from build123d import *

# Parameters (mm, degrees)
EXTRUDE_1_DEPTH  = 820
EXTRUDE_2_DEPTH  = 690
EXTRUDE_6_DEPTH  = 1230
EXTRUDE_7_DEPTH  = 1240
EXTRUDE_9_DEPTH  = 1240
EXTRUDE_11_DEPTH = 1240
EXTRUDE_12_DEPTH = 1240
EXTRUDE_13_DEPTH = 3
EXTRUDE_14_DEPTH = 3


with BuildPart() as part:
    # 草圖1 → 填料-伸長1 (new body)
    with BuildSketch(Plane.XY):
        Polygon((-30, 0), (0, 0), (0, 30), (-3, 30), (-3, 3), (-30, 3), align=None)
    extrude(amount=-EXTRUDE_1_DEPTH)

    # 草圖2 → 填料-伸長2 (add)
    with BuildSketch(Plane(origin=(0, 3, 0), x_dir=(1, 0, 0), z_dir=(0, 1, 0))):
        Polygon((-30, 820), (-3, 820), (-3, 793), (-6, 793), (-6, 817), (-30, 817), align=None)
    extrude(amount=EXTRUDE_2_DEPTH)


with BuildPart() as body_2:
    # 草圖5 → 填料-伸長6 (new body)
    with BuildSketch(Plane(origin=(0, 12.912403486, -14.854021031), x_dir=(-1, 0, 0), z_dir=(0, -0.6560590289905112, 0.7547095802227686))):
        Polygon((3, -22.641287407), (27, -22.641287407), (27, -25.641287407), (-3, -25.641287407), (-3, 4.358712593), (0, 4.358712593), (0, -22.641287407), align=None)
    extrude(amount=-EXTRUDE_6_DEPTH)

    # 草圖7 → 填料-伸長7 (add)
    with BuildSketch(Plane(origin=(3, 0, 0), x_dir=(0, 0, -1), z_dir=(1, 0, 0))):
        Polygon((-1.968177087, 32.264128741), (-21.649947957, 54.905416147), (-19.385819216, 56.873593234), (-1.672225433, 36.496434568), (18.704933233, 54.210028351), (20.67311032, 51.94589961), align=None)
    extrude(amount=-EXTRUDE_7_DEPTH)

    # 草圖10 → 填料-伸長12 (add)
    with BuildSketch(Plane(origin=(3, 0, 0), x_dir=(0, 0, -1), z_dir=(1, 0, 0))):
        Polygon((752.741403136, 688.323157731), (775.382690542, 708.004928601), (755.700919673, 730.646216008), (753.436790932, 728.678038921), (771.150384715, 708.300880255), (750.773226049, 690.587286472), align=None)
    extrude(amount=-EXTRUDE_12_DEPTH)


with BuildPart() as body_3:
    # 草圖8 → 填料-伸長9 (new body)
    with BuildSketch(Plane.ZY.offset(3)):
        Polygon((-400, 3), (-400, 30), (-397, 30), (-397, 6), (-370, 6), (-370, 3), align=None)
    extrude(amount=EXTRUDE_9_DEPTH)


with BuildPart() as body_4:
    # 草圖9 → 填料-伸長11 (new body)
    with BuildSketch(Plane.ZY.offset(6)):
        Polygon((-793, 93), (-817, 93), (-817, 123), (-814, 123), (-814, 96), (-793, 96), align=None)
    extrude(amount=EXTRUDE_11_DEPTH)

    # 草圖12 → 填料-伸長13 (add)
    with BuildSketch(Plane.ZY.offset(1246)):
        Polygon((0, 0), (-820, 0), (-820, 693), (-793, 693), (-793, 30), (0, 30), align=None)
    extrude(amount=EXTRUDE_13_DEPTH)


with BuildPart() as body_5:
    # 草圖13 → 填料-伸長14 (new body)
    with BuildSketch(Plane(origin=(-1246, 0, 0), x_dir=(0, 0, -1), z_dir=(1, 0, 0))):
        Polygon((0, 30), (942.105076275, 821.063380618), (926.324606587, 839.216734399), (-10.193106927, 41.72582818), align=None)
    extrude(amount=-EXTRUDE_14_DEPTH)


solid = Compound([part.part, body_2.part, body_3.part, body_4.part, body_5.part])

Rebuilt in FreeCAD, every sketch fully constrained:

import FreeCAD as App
import Part
import Sketcher

V = App.Vector
Q = App.Units.Quantity


def add_polygon(sketch, points):
    """Adds a closed chain of lines whose ends are joined by coincident constraints."""
    first, n = sketch.GeometryCount, len(points)
    for a, b in zip(points, points[1:] + points[:1]):
        sketch.addGeometry(Part.LineSegment(App.Vector(*a, 0), App.Vector(*b, 0)), False)
    for i in range(n):
        sketch.addConstraint(Sketcher.Constraint("Coincident", first + i, 2, first + (i + 1) % n, 1))

doc = App.newDocument("Part")
params = doc.addObject("Spreadsheet::Sheet", "Params")
for row, (alias, value) in enumerate([
    ("sketch1_width", "30 mm"),
    ("sketch1_width2", "3 mm"),
    ("pad1_length", "820 mm"),
    ("sketch2_width", "27 mm"),
    ("sketch2_width2", "24 mm"),
    ("pad2_length", "690 mm"),
    ("sketch3_width", "27 mm"),
    ("sketch3_width2", "3 mm"),
    ("pad3_length", "1230 mm"),
    ("sketch4_length", "30 mm"),
    ("sketch4_length2", "3 mm"),
    ("pad4_length", "1240 mm"),
    ("sketch5_length", "30 mm"),
    ("sketch5_length2", "3 mm"),
    ("pad5_length", "1240 mm"),
    ("sketch6_width", "27 mm"),
    ("sketch6_width2", "3 mm"),
    ("pad6_length", "1240 mm"),
    ("sketch7_width", "3 mm"),
    ("sketch7_width2", "27 mm"),
    ("sketch7_height", "24 mm"),
    ("pad7_length", "1240 mm"),
    ("sketch8_width", "30 mm"),
    ("sketch8_width2", "663 mm"),
    ("sketch8_height", "820 mm"),
    ("sketch8_height2", "793 mm"),
    ("pad8_length", "3 mm"),
    ("pad9_length", "3 mm"),
], start=1):
    params.set(f"A{row}", alias)
    params.set(f"B{row}", "=" + value)
    params.setAlias(f"B{row}", alias)

body = doc.addObject("PartDesign::Body", "Body")

# Sketch on XY plane
sketch1 = doc.addObject("Sketcher::SketchObject", "Sketch")
body.addObject(sketch1)
sketch1.AttachmentSupport = (doc.XY_Plane, [""])
sketch1.MapMode = "FlatFace"
add_polygon(sketch1, [(-30, 0), (0, 0), (0, 30), (-3, 30), (-3, 3), (-30, 3)])  # lines 0-5
sketch1.addConstraint(Sketcher.Constraint("Horizontal", 0))
sketch1.addConstraint(Sketcher.Constraint("Vertical", 1))
sketch1.addConstraint(Sketcher.Constraint("Horizontal", 2))
sketch1.addConstraint(Sketcher.Constraint("Vertical", 3))
sketch1.addConstraint(Sketcher.Constraint("Horizontal", 4))
sketch1.addConstraint(Sketcher.Constraint("Vertical", 5))
sketch1.addConstraint(Sketcher.Constraint("Coincident", 0, 2, -1, 1))
sketch1.addConstraint(Sketcher.Constraint("Equal", 0, 1))
sketch1.addConstraint(Sketcher.Constraint("Equal", 4, 3))
sketch1.addConstraint(Sketcher.Constraint("DistanceX", 0, 1, 0, 2, Q("30 mm")))
sketch1.addConstraint(Sketcher.Constraint("DistanceX", 2, 2, 2, 1, Q("3 mm")))
sketch1.setExpression("Constraints[15]", "Params.sketch1_width")
sketch1.setExpression("Constraints[16]", "Params.sketch1_width2")
pad1 = doc.addObject("PartDesign::Pad", "Pad")
body.addObject(pad1)
pad1.Profile = sketch1
pad1.setExpression("Length", "Params.pad1_length")
pad1.Reversed = True

# Sketch on XZ plane
sketch2 = doc.addObject("Sketcher::SketchObject", "Sketch001")
body.addObject(sketch2)
sketch2.AttachmentSupport = (doc.XZ_Plane, [""])
sketch2.MapMode = "FlatFace"
sketch2.AttachmentOffset = App.Placement(V(0, 0, -3), App.Rotation())
add_polygon(sketch2, [(-3, -820), (-30, -820), (-30, -817), (-6, -817), (-6, -793), (-3, -793)])  # lines 0-5
sketch2.addConstraint(Sketcher.Constraint("Horizontal", 0))
sketch2.addConstraint(Sketcher.Constraint("Vertical", 1))
sketch2.addConstraint(Sketcher.Constraint("Horizontal", 2))
sketch2.addConstraint(Sketcher.Constraint("Vertical", 3))
sketch2.addConstraint(Sketcher.Constraint("Horizontal", 4))
sketch2.addConstraint(Sketcher.Constraint("Vertical", 5))
sketch2.addConstraint(Sketcher.Constraint("Equal", 4, 1))
sketch2.addConstraint(Sketcher.Constraint("Equal", 2, 3))
sketch2.addConstraint(Sketcher.Constraint("DistanceX", 0, 2, 0, 1, Q("27 mm")))
sketch2.addConstraint(Sketcher.Constraint("DistanceX", 2, 1, 2, 2, Q("24 mm")))
sketch2.addConstraint(Sketcher.Constraint("DistanceX", 0, 2, -1, 1, Q("30 mm")))
sketch2.addConstraint(Sketcher.Constraint("DistanceY", 0, 2, -1, 1, Q("820 mm")))
sketch2.setExpression("Constraints[14]", "Params.sketch2_width")
sketch2.setExpression("Constraints[15]", "Params.sketch2_width2")
pad2 = doc.addObject("PartDesign::Pad", "Pad001")
body.addObject(pad2)
pad2.Profile = sketch2
pad2.setExpression("Length", "Params.pad2_length")
pad2.Reversed = True
body2 = doc.addObject("PartDesign::Body", "Body001")

# Sketch on an angled plane
sketch3 = doc.addObject("Sketcher::SketchObject", "Sketch002")
body2.addObject(sketch3)
sketch3.Placement = App.Placement(V(0, 12.912403, -14.854021), App.Rotation(V(-1, 0, 0), V(0, -0.75470958, -0.656059029), V(0, -0.656059029, 0.75470958), "ZXY"))
add_polygon(sketch3, [(27, -22.6), (0, -22.6), (0, 4.4), (-3, 4.4), (-3, -25.6), (27, -25.6)])  # lines 0-5
sketch3.addConstraint(Sketcher.Constraint("Horizontal", 0))
sketch3.addConstraint(Sketcher.Constraint("Vertical", 1))
sketch3.addConstraint(Sketcher.Constraint("Horizontal", 2))
sketch3.addConstraint(Sketcher.Constraint("Vertical", 3))
sketch3.addConstraint(Sketcher.Constraint("Horizontal", 4))
sketch3.addConstraint(Sketcher.Constraint("Vertical", 5))
sketch3.addConstraint(Sketcher.Constraint("PointOnObject", 0, 2, -2))
sketch3.addConstraint(Sketcher.Constraint("Equal", 0, 1))
sketch3.addConstraint(Sketcher.Constraint("Equal", 4, 3))
sketch3.addConstraint(Sketcher.Constraint("DistanceX", 0, 2, 0, 1, Q("27 mm")))
sketch3.addConstraint(Sketcher.Constraint("DistanceX", 2, 2, 2, 1, Q("3 mm")))
sketch3.addConstraint(Sketcher.Constraint("DistanceY", 0, 2, -1, 1, Q("22.641287 mm")))
sketch3.setExpression("Constraints[15]", "Params.sketch3_width")
sketch3.setExpression("Constraints[16]", "Params.sketch3_width2")
pad3 = doc.addObject("PartDesign::Pad", "Pad002")
body2.addObject(pad3)
pad3.Profile = sketch3
pad3.setExpression("Length", "Params.pad3_length")
pad3.Reversed = True

# Sketch on YZ plane
sketch4 = doc.addObject("Sketcher::SketchObject", "Sketch003")
body2.addObject(sketch4)
sketch4.AttachmentSupport = (doc.getObject("YZ_Plane001"), [""])
sketch4.MapMode = "FlatFace"
sketch4.AttachmentOffset = App.Placement(V(0, 0, 3), App.Rotation())
add_polygon(sketch4, [(54.9, 21.6), (32.3, 2), (51.9, -20.7), (54.2, -18.7), (36.5, 1.7), (56.9, 19.4)])  # lines 0-5
sketch4.addConstraint(Sketcher.Constraint("Perpendicular", 0, 1))
sketch4.addConstraint(Sketcher.Constraint("Perpendicular", 1, 2))
sketch4.addConstraint(Sketcher.Constraint("Perpendicular", 2, 3))
sketch4.addConstraint(Sketcher.Constraint("Perpendicular", 3, 4))
sketch4.addConstraint(Sketcher.Constraint("Perpendicular", 4, 5))
sketch4.addConstraint(Sketcher.Constraint("Equal", 0, 1))
sketch4.addConstraint(Sketcher.Constraint("Equal", 3, 4))
sketch4.addConstraint(Sketcher.Constraint("Angle", 0, Q("-139 deg")))
sketch4.addConstraint(Sketcher.Constraint("Distance", 0, Q("30 mm")))
sketch4.addConstraint(Sketcher.Constraint("Distance", 2, Q("3 mm")))
sketch4.addConstraint(Sketcher.Constraint("DistanceX", -1, 1, 1, 2, Q("51.9459 mm")))
sketch4.addConstraint(Sketcher.Constraint("DistanceY", 1, 2, -1, 1, Q("20.67311 mm")))
sketch4.setExpression("Constraints[14]", "Params.sketch4_length")
sketch4.setExpression("Constraints[15]", "Params.sketch4_length2")
pad4 = doc.addObject("PartDesign::Pad", "Pad003")
body2.addObject(pad4)
pad4.Profile = sketch4
pad4.setExpression("Length", "Params.pad4_length")
pad4.Reversed = True

# Sketch on YZ plane
sketch5 = doc.addObject("Sketcher::SketchObject", "Sketch004")
body2.addObject(sketch5)
sketch5.AttachmentSupport = (doc.getObject("YZ_Plane001"), [""])
sketch5.MapMode = "FlatFace"
sketch5.AttachmentOffset = App.Placement(V(0, 0, 3), App.Rotation())
add_polygon(sketch5, [(688.3, -752.7), (708, -775.4), (730.6, -755.7), (728.7, -753.4), (708.3, -771.2), (690.6, -750.8)])  # lines 0-5
sketch5.addConstraint(Sketcher.Constraint("Perpendicular", 0, 1))
sketch5.addConstraint(Sketcher.Constraint("Perpendicular", 1, 2))
sketch5.addConstraint(Sketcher.Constraint("Perpendicular", 2, 3))
sketch5.addConstraint(Sketcher.Constraint("Perpendicular", 3, 4))
sketch5.addConstraint(Sketcher.Constraint("Perpendicular", 4, 5))
sketch5.addConstraint(Sketcher.Constraint("Equal", 0, 1))
sketch5.addConstraint(Sketcher.Constraint("Equal", 3, 4))
sketch5.addConstraint(Sketcher.Constraint("Angle", 0, Q("-49 deg")))
sketch5.addConstraint(Sketcher.Constraint("Distance", 0, Q("30 mm")))
sketch5.addConstraint(Sketcher.Constraint("Distance", 2, Q("3 mm")))
sketch5.addConstraint(Sketcher.Constraint("DistanceX", -1, 1, 0, 2, Q("708.004929 mm")))
sketch5.addConstraint(Sketcher.Constraint("DistanceY", 0, 2, -1, 1, Q("775.382691 mm")))
sketch5.setExpression("Constraints[14]", "Params.sketch5_length")
sketch5.setExpression("Constraints[15]", "Params.sketch5_length2")
pad5 = doc.addObject("PartDesign::Pad", "Pad004")
body2.addObject(pad5)
pad5.Profile = sketch5
pad5.setExpression("Length", "Params.pad5_length")
pad5.Reversed = True
body3 = doc.addObject("PartDesign::Body", "Body002")

# Sketch on YZ plane
sketch6 = doc.addObject("Sketcher::SketchObject", "Sketch005")
body3.addObject(sketch6)
sketch6.AttachmentSupport = (doc.getObject("YZ_Plane002"), [""])
sketch6.MapMode = "FlatFace"
sketch6.AttachmentOffset = App.Placement(V(0, 0, -3), App.Rotation())
add_polygon(sketch6, [(30, -400), (3, -400), (3, -370), (6, -370), (6, -397), (30, -397)])  # lines 0-5
sketch6.addConstraint(Sketcher.Constraint("Horizontal", 0))
sketch6.addConstraint(Sketcher.Constraint("Vertical", 1))
sketch6.addConstraint(Sketcher.Constraint("Horizontal", 2))
sketch6.addConstraint(Sketcher.Constraint("Vertical", 3))
sketch6.addConstraint(Sketcher.Constraint("Horizontal", 4))
sketch6.addConstraint(Sketcher.Constraint("Vertical", 5))
sketch6.addConstraint(Sketcher.Constraint("Equal", 0, 3))
sketch6.addConstraint(Sketcher.Constraint("Equal", 2, 5))
sketch6.addConstraint(Sketcher.Constraint("DistanceX", 0, 2, 0, 1, Q("27 mm")))
sketch6.addConstraint(Sketcher.Constraint("DistanceX", 2, 1, 2, 2, Q("3 mm")))
sketch6.addConstraint(Sketcher.Constraint("DistanceX", -1, 1, 0, 2, Q("3 mm")))
sketch6.addConstraint(Sketcher.Constraint("DistanceY", 0, 2, -1, 1, Q("400 mm")))
sketch6.setExpression("Constraints[14]", "Params.sketch6_width")
sketch6.setExpression("Constraints[15]", "Params.sketch6_width2")
pad6 = doc.addObject("PartDesign::Pad", "Pad005")
body3.addObject(pad6)
pad6.Profile = sketch6
pad6.setExpression("Length", "Params.pad6_length")
pad6.Reversed = True
body4 = doc.addObject("PartDesign::Body", "Body003")

# Sketch on YZ plane
sketch7 = doc.addObject("Sketcher::SketchObject", "Sketch006")
body4.addObject(sketch7)
sketch7.AttachmentSupport = (doc.getObject("YZ_Plane003"), [""])
sketch7.MapMode = "FlatFace"
sketch7.AttachmentOffset = App.Placement(V(0, 0, -6), App.Rotation())
add_polygon(sketch7, [(93, -817), (93, -793), (96, -793), (96, -814), (123, -814), (123, -817)])  # lines 0-5
sketch7.addConstraint(Sketcher.Constraint("Vertical", 0))
sketch7.addConstraint(Sketcher.Constraint("Horizontal", 1))
sketch7.addConstraint(Sketcher.Constraint("Vertical", 2))
sketch7.addConstraint(Sketcher.Constraint("Horizontal", 3))
sketch7.addConstraint(Sketcher.Constraint("Vertical", 4))
sketch7.addConstraint(Sketcher.Constraint("Horizontal", 5))
sketch7.addConstraint(Sketcher.Constraint("Equal", 1, 4))
sketch7.addConstraint(Sketcher.Constraint("DistanceX", 1, 1, 1, 2, Q("3 mm")))
sketch7.addConstraint(Sketcher.Constraint("DistanceX", 3, 1, 3, 2, Q("27 mm")))
sketch7.addConstraint(Sketcher.Constraint("DistanceY", 0, 1, 0, 2, Q("24 mm")))
sketch7.addConstraint(Sketcher.Constraint("DistanceX", -1, 1, 0, 2, Q("93 mm")))
sketch7.addConstraint(Sketcher.Constraint("DistanceY", 0, 2, -1, 1, Q("793 mm")))
sketch7.setExpression("Constraints[13]", "Params.sketch7_width")
sketch7.setExpression("Constraints[14]", "Params.sketch7_width2")
sketch7.setExpression("Constraints[15]", "Params.sketch7_height")
pad7 = doc.addObject("PartDesign::Pad", "Pad006")
body4.addObject(pad7)
pad7.Profile = sketch7
pad7.setExpression("Length", "Params.pad7_length")
pad7.Reversed = True

# Sketch on YZ plane
sketch8 = doc.addObject("Sketcher::SketchObject", "Sketch007")
body4.addObject(sketch8)
sketch8.AttachmentSupport = (doc.getObject("YZ_Plane003"), [""])
sketch8.MapMode = "FlatFace"
sketch8.AttachmentOffset = App.Placement(V(0, 0, -1246), App.Rotation())
add_polygon(sketch8, [(0, -820), (0, 0), (30, 0), (30, -793), (693, -793), (693, -820)])  # lines 0-5
sketch8.addConstraint(Sketcher.Constraint("Vertical", 0))
sketch8.addConstraint(Sketcher.Constraint("Horizontal", 1))
sketch8.addConstraint(Sketcher.Constraint("Vertical", 2))
sketch8.addConstraint(Sketcher.Constraint("Horizontal", 3))
sketch8.addConstraint(Sketcher.Constraint("Vertical", 4))
sketch8.addConstraint(Sketcher.Constraint("Horizontal", 5))
sketch8.addConstraint(Sketcher.Constraint("Coincident", 0, 2, -1, 1))
sketch8.addConstraint(Sketcher.Constraint("DistanceX", 1, 1, 1, 2, Q("30 mm")))
sketch8.addConstraint(Sketcher.Constraint("DistanceX", 3, 1, 3, 2, Q("663 mm")))
sketch8.addConstraint(Sketcher.Constraint("DistanceY", 0, 1, 0, 2, Q("820 mm")))
sketch8.addConstraint(Sketcher.Constraint("DistanceY", 2, 2, 2, 1, Q("793 mm")))
sketch8.setExpression("Constraints[13]", "Params.sketch8_width")
sketch8.setExpression("Constraints[14]", "Params.sketch8_width2")
sketch8.setExpression("Constraints[15]", "Params.sketch8_height")
sketch8.setExpression("Constraints[16]", "Params.sketch8_height2")
pad8 = doc.addObject("PartDesign::Pad", "Pad007")
body4.addObject(pad8)
pad8.Profile = sketch8
pad8.setExpression("Length", "Params.pad8_length")
pad8.Reversed = True
body5 = doc.addObject("PartDesign::Body", "Body004")

# Sketch on YZ plane
sketch9 = doc.addObject("Sketcher::SketchObject", "Sketch008")
body5.addObject(sketch9)
sketch9.AttachmentSupport = (doc.getObject("YZ_Plane004"), [""])
sketch9.MapMode = "FlatFace"
sketch9.AttachmentOffset = App.Placement(V(0, 0, -1246), App.Rotation())
add_polygon(sketch9, [(30, 0), (821.063381, -942.105076), (839.216734, -926.324607), (41.725828, 10.193107)])  # lines 0-3
sketch9.addConstraint(Sketcher.Constraint("PointOnObject", 3, 2, -1))
sketch9.addConstraint(Sketcher.Constraint("DistanceX", -1, 1, 3, 2, Q("30 mm")))
sketch9.addConstraint(Sketcher.Constraint("Distance", 0, Q("1230.180168 mm")))
sketch9.addConstraint(Sketcher.Constraint("Distance", 1, Q("24.05343 mm")))
sketch9.addConstraint(Sketcher.Constraint("Distance", 2, Q("1230.06389 mm")))
sketch9.addConstraint(Sketcher.Constraint("DistanceX", -1, 1, 0, 2, Q("821.063381 mm")))
sketch9.addConstraint(Sketcher.Constraint("DistanceX", -1, 1, 2, 2, Q("41.725828 mm")))
sketch9.addConstraint(Sketcher.Constraint("DistanceY", 0, 2, 1, 2, Q("15.78047 mm")))
pad9 = doc.addObject("PartDesign::Pad", "Pad008")
body5.addObject(pad9)
pad9.Profile = sketch9
pad9.setExpression("Length", "Params.pad9_length")
pad9.Reversed = True

doc.recompute()
